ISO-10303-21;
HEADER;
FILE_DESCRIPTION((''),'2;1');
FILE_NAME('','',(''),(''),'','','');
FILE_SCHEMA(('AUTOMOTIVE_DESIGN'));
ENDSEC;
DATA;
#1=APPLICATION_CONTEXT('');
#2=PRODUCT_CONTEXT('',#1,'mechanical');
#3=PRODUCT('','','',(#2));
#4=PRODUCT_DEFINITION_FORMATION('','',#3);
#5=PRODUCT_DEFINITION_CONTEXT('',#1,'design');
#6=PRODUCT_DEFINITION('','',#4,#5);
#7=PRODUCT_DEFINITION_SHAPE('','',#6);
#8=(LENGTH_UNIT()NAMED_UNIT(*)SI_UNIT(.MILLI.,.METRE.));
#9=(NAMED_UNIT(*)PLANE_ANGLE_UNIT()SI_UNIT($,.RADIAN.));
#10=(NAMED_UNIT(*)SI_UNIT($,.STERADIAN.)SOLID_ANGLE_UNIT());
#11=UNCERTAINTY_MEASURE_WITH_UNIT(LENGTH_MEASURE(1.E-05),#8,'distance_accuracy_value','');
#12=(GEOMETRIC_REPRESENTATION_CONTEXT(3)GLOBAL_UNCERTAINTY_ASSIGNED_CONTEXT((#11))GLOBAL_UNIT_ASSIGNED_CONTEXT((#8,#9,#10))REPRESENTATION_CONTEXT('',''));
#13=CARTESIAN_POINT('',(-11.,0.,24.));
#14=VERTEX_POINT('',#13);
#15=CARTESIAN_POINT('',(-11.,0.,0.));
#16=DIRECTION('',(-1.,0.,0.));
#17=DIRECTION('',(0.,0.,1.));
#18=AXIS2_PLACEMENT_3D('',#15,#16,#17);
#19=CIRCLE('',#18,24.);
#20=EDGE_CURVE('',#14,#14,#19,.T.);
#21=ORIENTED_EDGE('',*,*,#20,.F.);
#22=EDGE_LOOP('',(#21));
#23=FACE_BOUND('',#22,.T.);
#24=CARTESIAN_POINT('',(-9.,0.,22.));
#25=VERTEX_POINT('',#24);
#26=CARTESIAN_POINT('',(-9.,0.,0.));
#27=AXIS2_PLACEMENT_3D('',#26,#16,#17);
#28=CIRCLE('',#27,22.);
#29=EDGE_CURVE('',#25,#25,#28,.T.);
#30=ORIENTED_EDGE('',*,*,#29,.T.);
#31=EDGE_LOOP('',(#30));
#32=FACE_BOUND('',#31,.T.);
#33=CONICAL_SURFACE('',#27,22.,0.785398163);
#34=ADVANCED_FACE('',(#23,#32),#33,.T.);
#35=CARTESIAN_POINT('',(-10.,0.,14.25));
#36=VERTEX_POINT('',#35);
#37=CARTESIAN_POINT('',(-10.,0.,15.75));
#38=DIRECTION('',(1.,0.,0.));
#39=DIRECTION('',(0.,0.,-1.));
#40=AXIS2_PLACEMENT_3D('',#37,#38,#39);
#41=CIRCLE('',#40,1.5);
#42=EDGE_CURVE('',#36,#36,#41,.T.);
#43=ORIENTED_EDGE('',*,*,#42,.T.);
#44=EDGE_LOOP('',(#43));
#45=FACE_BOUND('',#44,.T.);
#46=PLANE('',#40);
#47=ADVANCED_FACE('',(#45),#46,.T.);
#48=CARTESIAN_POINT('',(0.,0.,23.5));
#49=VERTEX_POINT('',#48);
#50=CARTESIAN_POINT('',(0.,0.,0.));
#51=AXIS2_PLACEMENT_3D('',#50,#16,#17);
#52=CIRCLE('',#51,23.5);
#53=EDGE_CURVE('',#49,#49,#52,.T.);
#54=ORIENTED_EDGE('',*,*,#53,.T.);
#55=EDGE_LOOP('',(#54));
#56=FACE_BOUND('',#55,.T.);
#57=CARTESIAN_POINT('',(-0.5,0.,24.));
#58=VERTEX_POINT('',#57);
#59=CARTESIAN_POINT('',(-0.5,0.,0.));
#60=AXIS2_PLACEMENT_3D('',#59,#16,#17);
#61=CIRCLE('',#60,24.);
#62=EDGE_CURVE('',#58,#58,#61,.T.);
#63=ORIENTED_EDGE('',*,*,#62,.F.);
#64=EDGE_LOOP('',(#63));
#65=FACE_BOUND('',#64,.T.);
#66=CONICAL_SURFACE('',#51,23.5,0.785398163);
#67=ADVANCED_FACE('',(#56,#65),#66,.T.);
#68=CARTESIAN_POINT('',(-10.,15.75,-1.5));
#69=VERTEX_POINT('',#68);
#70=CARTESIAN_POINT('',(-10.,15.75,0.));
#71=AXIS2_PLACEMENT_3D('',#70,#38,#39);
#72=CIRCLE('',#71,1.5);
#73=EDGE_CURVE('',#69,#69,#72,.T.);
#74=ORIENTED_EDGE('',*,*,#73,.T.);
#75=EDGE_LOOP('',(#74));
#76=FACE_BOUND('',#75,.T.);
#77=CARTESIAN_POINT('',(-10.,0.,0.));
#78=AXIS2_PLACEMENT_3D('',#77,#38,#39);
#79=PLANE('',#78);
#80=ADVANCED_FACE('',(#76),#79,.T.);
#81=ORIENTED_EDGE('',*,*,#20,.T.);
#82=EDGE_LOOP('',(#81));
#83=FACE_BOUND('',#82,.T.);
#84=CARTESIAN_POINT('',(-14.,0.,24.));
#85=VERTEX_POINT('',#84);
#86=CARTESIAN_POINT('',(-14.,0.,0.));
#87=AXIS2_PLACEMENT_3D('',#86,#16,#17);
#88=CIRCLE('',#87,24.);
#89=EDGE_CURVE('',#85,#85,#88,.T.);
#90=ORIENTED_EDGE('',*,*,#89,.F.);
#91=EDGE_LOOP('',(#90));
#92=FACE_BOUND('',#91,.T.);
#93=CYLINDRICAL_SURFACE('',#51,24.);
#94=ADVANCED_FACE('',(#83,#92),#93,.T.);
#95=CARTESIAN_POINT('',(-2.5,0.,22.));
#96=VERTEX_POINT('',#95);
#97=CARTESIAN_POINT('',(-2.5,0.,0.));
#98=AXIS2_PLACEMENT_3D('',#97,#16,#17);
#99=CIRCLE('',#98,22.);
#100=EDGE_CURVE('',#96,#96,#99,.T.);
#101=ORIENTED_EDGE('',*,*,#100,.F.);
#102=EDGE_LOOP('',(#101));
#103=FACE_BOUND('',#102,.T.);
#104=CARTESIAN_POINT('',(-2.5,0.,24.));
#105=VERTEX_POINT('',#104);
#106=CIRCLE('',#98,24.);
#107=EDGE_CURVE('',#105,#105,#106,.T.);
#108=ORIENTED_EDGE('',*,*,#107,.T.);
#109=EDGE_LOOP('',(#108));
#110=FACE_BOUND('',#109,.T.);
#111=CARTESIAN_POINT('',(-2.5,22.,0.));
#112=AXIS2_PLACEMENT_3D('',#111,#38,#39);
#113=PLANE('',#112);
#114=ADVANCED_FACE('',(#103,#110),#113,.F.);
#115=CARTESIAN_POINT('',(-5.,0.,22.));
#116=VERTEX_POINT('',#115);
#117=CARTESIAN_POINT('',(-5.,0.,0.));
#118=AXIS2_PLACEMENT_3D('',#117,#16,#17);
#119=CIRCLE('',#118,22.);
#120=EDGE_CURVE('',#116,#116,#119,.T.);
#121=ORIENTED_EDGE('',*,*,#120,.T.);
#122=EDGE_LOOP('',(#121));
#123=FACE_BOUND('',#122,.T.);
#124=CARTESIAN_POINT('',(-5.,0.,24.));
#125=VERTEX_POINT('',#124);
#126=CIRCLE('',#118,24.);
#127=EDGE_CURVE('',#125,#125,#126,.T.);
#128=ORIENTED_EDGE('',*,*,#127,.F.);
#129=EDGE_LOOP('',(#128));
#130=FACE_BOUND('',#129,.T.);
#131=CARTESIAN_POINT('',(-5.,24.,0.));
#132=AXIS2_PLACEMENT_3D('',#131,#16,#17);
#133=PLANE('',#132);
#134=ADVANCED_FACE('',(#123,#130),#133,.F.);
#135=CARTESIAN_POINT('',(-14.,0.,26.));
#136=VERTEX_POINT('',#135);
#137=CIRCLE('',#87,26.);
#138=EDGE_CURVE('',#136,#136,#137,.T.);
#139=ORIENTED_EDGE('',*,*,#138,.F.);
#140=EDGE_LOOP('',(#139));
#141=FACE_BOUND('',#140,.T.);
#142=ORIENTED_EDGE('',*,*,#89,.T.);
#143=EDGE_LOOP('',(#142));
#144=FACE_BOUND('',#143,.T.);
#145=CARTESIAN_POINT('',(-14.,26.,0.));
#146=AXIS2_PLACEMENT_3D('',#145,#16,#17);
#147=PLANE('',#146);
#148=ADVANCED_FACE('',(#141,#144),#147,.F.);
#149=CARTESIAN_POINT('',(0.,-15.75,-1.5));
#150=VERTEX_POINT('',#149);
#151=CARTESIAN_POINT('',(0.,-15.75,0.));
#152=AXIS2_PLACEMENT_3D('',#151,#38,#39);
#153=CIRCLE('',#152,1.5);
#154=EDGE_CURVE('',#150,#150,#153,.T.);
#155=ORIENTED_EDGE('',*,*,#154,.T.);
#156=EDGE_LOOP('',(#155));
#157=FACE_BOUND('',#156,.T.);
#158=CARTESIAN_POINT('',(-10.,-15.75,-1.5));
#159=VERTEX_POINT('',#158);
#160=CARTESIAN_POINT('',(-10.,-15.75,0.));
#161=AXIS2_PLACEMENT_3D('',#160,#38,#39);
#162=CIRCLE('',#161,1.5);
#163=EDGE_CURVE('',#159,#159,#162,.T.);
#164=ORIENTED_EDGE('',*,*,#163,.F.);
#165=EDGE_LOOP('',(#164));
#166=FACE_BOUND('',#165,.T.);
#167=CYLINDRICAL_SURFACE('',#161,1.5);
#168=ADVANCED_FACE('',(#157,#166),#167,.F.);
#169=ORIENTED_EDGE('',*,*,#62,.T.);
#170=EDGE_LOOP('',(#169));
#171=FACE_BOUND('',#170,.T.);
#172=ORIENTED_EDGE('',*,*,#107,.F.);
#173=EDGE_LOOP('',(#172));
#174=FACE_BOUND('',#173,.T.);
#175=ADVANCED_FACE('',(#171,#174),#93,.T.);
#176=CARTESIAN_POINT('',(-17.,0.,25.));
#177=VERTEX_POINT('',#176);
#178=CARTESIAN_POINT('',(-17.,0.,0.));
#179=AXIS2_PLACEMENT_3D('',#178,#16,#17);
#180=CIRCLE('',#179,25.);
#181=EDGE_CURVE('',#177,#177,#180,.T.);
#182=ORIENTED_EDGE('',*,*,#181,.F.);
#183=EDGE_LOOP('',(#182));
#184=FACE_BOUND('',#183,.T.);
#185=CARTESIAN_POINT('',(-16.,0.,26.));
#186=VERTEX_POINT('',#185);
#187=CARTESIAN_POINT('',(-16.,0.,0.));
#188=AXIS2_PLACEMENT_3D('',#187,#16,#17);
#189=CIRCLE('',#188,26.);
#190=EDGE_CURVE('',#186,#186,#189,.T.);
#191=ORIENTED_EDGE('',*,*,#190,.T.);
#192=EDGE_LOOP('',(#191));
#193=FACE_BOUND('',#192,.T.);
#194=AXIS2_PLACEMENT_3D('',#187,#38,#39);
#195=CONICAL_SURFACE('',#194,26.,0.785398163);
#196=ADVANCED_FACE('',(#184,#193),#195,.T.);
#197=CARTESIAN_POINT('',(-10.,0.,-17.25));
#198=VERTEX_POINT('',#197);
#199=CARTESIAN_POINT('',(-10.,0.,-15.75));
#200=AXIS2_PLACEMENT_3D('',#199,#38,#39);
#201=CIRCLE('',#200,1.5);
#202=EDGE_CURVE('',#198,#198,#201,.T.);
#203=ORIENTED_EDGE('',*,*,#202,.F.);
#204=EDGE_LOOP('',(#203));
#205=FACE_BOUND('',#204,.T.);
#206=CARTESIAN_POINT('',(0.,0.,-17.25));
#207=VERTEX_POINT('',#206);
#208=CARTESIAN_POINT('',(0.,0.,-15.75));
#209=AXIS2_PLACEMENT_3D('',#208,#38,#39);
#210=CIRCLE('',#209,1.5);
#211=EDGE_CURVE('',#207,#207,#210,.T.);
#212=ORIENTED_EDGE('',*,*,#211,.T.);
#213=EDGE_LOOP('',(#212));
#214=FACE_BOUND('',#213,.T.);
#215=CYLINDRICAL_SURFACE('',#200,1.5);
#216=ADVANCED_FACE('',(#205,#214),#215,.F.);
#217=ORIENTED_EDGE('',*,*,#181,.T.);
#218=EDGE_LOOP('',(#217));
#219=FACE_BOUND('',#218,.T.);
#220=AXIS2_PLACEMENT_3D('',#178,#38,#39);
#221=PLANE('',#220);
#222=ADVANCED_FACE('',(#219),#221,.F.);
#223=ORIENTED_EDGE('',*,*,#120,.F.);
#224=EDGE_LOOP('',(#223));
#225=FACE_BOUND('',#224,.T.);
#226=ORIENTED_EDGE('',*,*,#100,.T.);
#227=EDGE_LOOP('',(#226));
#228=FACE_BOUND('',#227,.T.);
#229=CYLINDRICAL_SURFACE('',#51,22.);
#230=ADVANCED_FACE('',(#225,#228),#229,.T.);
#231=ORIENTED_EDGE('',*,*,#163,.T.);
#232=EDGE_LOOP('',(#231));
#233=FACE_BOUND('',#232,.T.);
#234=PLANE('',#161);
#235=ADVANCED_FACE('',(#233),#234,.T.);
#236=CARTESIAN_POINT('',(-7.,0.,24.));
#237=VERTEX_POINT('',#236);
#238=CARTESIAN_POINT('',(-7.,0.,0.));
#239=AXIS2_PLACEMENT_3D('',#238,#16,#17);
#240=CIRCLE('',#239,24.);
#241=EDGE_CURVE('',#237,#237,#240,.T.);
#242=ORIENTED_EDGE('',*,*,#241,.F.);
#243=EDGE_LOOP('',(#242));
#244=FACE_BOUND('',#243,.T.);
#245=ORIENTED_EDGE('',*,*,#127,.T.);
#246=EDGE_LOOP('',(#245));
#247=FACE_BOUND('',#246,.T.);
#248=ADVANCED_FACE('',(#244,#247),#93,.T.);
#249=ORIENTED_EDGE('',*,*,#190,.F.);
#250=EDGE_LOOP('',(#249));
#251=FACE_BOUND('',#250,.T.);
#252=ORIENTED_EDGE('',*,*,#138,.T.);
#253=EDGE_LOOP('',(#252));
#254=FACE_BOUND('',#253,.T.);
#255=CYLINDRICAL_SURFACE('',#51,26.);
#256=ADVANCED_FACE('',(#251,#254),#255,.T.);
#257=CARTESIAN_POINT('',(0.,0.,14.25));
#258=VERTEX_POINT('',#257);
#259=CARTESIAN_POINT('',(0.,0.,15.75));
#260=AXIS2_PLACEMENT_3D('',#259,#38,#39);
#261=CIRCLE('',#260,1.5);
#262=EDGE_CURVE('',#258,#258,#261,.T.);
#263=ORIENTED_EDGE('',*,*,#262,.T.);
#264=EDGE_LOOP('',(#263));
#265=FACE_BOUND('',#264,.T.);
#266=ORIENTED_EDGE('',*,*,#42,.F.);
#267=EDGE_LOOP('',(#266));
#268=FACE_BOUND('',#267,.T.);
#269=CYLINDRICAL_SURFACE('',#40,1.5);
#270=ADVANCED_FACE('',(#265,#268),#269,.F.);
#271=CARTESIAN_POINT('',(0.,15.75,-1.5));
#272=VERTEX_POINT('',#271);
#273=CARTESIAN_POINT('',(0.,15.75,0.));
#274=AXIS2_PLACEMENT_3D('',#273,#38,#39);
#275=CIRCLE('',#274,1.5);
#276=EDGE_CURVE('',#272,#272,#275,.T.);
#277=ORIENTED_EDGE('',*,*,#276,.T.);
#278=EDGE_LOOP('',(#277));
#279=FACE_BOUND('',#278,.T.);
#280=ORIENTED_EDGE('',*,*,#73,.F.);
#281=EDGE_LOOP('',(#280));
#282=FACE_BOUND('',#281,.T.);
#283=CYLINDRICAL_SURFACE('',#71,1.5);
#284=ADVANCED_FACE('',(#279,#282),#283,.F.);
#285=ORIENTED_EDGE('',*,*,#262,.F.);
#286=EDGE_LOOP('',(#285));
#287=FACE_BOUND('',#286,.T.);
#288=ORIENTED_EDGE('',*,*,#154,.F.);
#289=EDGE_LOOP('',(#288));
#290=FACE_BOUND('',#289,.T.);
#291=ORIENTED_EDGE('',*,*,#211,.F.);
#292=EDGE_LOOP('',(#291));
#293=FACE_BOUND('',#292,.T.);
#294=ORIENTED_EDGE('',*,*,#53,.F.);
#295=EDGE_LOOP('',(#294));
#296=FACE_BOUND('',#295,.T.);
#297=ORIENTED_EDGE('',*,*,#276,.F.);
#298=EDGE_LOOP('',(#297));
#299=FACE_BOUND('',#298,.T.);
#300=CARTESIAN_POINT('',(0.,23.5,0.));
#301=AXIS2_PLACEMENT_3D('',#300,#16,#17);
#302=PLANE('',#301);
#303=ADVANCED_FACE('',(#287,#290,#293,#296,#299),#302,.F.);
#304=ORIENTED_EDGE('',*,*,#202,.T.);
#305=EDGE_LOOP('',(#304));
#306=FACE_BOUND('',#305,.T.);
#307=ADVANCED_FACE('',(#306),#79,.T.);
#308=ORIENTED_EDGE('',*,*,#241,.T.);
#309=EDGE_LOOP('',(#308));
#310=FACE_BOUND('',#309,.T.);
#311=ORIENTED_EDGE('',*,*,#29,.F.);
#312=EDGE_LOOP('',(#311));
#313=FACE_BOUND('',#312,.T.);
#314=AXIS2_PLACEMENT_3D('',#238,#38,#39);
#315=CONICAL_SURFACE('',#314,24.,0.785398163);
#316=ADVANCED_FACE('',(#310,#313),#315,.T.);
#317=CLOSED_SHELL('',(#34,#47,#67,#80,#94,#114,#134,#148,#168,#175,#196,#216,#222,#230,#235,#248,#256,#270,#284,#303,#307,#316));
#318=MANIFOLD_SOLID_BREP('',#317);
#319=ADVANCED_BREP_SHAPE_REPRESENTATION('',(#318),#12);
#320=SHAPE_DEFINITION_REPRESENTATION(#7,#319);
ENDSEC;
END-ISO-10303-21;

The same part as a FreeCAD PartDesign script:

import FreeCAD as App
import Part
import Sketcher
from FreeCAD import Vector


def add_polygon(sketch, points):
    """Adds a closed chain of lines whose ends are joined by coincident constraints."""
    first, n = sketch.GeometryCount, len(points)
    for a, b in zip(points, points[1:] + points[:1]):
        sketch.addGeometry(Part.LineSegment(App.Vector(*a, 0), App.Vector(*b, 0)), False)
    for i in range(n):
        sketch.addConstraint(Sketcher.Constraint("Coincident", first + i, 2, first + (i + 1) % n, 1))

doc = App.newDocument("Part")
body = doc.addObject("PartDesign::Body", "Body")

# Sketch on XY plane
sketch1 = doc.addObject("Sketcher::SketchObject", "Sketch")
body.addObject(sketch1)
sketch1.AttachmentSupport = (doc.XY_Plane, [""])
sketch1.MapMode = "FlatFace"
add_polygon(sketch1, [(-17, 25), (-17, 0), (0, 0), (0, 23.5), (-0.5, 24), (-2.5, 24), (-2.5, 22), (-5, 22), (-5, 24), (-7, 24), (-9, 22), (-11, 24), (-14, 24), (-14, 26), (-16, 26)])  # lines 0-14
sketch1.addConstraint([
    Sketcher.Constraint("Vertical", 0),
    Sketcher.Constraint("Horizontal", 1),
    Sketcher.Constraint("Vertical", 2),
    Sketcher.Constraint("Horizontal", 4),
    Sketcher.Constraint("Vertical", 5),
    Sketcher.Constraint("Horizontal", 6),
    Sketcher.Constraint("Vertical", 7),
    Sketcher.Constraint("Horizontal", 8),
    Sketcher.Constraint("Horizontal", 11),
    Sketcher.Constraint("Vertical", 12),
    Sketcher.Constraint("Horizontal", 13),
    Sketcher.Constraint("Coincident", 1, 2, -1, 1),
    Sketcher.Constraint("Perpendicular", 3, 9),
    Sketcher.Constraint("Perpendicular", 9, 10),
    Sketcher.Constraint("Perpendicular", 10, 14),
    Sketcher.Constraint("Horizontal", 4, 2, 7, 2),
    Sketcher.Constraint("Horizontal", 6, 2, 9, 2),
    Sketcher.Constraint("Horizontal", 8, 2, 10, 2),
    Sketcher.Constraint("Equal", 4, 8),
    Sketcher.Constraint("Equal", 8, 13),
    Sketcher.Constraint("Equal", 13, 5),
    Sketcher.Constraint("Equal", 7, 12),
    Sketcher.Constraint("Equal", 9, 10),
    Sketcher.Constraint("DistanceX", 1, 1, 1, 2, 17.0),
    Sketcher.Constraint("DistanceX", 4, 2, 4, 1, 2.0),
    Sketcher.Constraint("DistanceX", 11, 2, 11, 1, 3.0),
    Sketcher.Constraint("DistanceY", 0, 2, 0, 1, 25.0),
    Sketcher.Constraint("DistanceX", 6, 2, 6, 1, 2.5),
    Sketcher.Constraint("DistanceY", 2, 1, 2, 2, 23.5),
])
revolution = doc.addObject("PartDesign::Revolution", "Revolution")
body.addObject(revolution)
revolution.Profile = sketch1
revolution.ReferenceAxis = (sketch1, ["H_Axis"])
revolution.Angle = 360

# Sketch on YZ plane
sketch2 = doc.addObject("Sketcher::SketchObject", "Sketch001")
body.addObject(sketch2)
sketch2.AttachmentSupport = (doc.YZ_Plane, [""])
sketch2.MapMode = "FlatFace"
sketch2.addGeometry([
    Part.Circle(Vector(15.8, 0, 0), Vector(0, 0, 1), 1.5),
    Part.Circle(Vector(0, -15.8, 0), Vector(0, 0, 1), 1.5),
    Part.Circle(Vector(0, 15.8, 0), Vector(0, 0, 1), 1.5),
    Part.Circle(Vector(-15.8, 0, 0), Vector(0, 0, 1), 1.5),
], False)
sketch2.addConstraint([
    Sketcher.Constraint("Equal", 0, 1),
    Sketcher.Constraint("Equal", 1, 2),
    Sketcher.Constraint("Equal", 2, 3),
    Sketcher.Constraint("Symmetric", 1, 3, 2, 3, -1, 1),
    Sketcher.Constraint("Symmetric", 0, 3, 3, 3, -1, 1),
    Sketcher.Constraint("PointOnObject", 0, 3, -1),
    Sketcher.Constraint("PointOnObject", 1, 3, -2),
    Sketcher.Constraint("Diameter", 0, 3.0),
    Sketcher.Constraint("DistanceY", 1, 3, 2, 3, 31.5),
    Sketcher.Constraint("DistanceX", 3, 3, 0, 3, 31.5),
])
pocket1 = doc.addObject("PartDesign::Pocket", "Pocket")
body.addObject(pocket1)
pocket1.Profile = sketch2
pocket1.Length = 10

doc.recompute()
